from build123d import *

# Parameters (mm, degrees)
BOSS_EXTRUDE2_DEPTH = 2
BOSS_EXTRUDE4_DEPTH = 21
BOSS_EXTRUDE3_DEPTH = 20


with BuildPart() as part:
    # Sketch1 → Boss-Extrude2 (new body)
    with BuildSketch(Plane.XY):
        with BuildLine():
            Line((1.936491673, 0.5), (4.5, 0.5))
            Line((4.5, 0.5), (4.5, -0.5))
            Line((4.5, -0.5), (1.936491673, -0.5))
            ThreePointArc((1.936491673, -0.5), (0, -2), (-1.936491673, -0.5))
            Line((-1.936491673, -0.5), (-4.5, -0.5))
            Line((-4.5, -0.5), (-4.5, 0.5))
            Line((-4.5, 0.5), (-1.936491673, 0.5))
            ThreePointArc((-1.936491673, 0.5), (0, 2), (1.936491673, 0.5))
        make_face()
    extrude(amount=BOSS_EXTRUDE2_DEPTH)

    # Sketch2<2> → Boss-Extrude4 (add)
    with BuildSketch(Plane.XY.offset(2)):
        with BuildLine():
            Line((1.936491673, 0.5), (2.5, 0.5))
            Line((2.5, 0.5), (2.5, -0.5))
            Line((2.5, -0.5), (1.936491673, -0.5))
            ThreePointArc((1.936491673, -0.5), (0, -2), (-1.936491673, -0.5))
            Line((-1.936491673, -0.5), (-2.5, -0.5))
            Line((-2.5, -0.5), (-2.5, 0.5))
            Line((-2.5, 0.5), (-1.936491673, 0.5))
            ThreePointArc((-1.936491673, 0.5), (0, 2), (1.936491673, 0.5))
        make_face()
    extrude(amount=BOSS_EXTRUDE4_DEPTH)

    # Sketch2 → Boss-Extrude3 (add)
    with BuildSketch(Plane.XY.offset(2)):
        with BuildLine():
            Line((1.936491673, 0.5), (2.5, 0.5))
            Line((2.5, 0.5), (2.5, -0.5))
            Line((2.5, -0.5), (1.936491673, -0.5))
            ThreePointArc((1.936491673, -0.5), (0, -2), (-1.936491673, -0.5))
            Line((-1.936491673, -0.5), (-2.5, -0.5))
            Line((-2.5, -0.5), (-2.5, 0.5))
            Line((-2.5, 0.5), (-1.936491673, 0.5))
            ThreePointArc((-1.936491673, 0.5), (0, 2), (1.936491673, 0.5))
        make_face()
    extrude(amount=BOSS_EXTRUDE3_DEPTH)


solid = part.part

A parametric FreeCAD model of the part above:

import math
import FreeCAD as App
import Part
import Sketcher

V = App.Vector
Q = App.Units.Quantity

doc = App.newDocument("Part")
body = doc.addObject("PartDesign::Body", "Body")

# Sketch on XY plane
sketch1 = body.newObject("Sketcher::SketchObject", "Sketch")
sketch1.AttachmentSupport = (doc.getObject("XY_Plane"), [""])
sketch1.MapMode = "FlatFace"
sketch1.addGeometry([
    Part.LineSegment(V(4.5, 0.5, 0), V(1.9, 0.5, 0)),  # 0
    Part.ArcOfCircle(Part.Circle(V(0, 0, 0), V(0, 0, 1), 2), math.radians(14), math.radians(166)),  # 1
    Part.LineSegment(V(-1.9, 0.5, 0), V(-4.5, 0.5, 0)),  # 2
    Part.LineSegment(V(-4.5, 0.5, 0), V(-4.5, -0.5, 0)),  # 3
    Part.LineSegment(V(-4.5, -0.5, 0), V(-1.9, -0.5, 0)),  # 4
    Part.ArcOfCircle(Part.Circle(V(0, 0, 0), V(0, 0, 1), 2), math.radians(-166), math.radians(-14)),  # 5
    Part.LineSegment(V(1.9, -0.5, 0), V(4.5, -0.5, 0)),  # 6
    Part.LineSegment(V(4.5, -0.5, 0), V(4.5, 0.5, 0)),  # 7
], False)
sketch1.addConstraint([
    Sketcher.Constraint("Coincident", 0, 2, 1, 1),
    Sketcher.Constraint("Coincident", 1, 2, 2, 1),
    Sketcher.Constraint("Coincident", 2, 2, 3, 1),
    Sketcher.Constraint("Coincident", 3, 2, 4, 1),
    Sketcher.Constraint("Coincident", 4, 2, 5, 1),
    Sketcher.Constraint("Coincident", 5, 2, 6, 1),
    Sketcher.Constraint("Coincident", 6, 2, 7, 1),
    Sketcher.Constraint("Coincident", 7, 2, 0, 1),
    Sketcher.Constraint("Horizontal", 0),
    Sketcher.Constraint("Horizontal", 2),
    Sketcher.Constraint("Vertical", 3),
    Sketcher.Constraint("Horizontal", 4),
    Sketcher.Constraint("Horizontal", 6),
    Sketcher.Constraint("Vertical", 7),
    Sketcher.Constraint("Coincident", 1, 3, -1, 1),
    Sketcher.Constraint("Coincident", 5, 3, -1, 1),
    Sketcher.Constraint("Equal", 1, 5),
    Sketcher.Constraint("Symmetric", 2, 2, 6, 2, -1, 1),
    Sketcher.Constraint("Horizontal", 0, 2, 1, 2),
    Sketcher.Constraint("Horizontal", 4, 2, 5, 2),
    Sketcher.Constraint("Radius", 1, Q("2 mm")),
    Sketcher.Constraint("DistanceY", 3, 2, 3, 1, Q("1 mm")),
    Sketcher.Constraint("DistanceX", 2, 2, -1, 1, Q("4.5 mm")),
])
pad1 = body.newObject("PartDesign::Pad", "Pad")
pad1.Profile = sketch1
pad1.Length = 2

# Sketch on XY plane
sketch2 = body.newObject("Sketcher::SketchObject", "Sketch001")
sketch2.AttachmentSupport = (doc.getObject("XY_Plane"), [""])
sketch2.MapMode = "FlatFace"
sketch2.AttachmentOffset = App.Placement(V(0, 0, 2), App.Rotation())
sketch2.addGeometry([
    Part.LineSegment(V(2.5, 0.5, 0), V(1.9, 0.5, 0)),  # 0
    Part.ArcOfCircle(Part.Circle(V(0, 0, 0), V(0, 0, 1), 2), math.radians(14), math.radians(166)),  # 1
    Part.LineSegment(V(-1.9, 0.5, 0), V(-2.5, 0.5, 0)),  # 2
    Part.LineSegment(V(-2.5, 0.5, 0), V(-2.5, -0.5, 0)),  # 3
    Part.LineSegment(V(-2.5, -0.5, 0), V(-1.9, -0.5, 0)),  # 4
    Part.ArcOfCircle(Part.Circle(V(0, 0, 0), V(0, 0, 1), 2), math.radians(-166), math.radians(-14)),  # 5
    Part.LineSegment(V(1.9, -0.5, 0), V(2.5, -0.5, 0)),  # 6
    Part.LineSegment(V(2.5, -0.5, 0), V(2.5, 0.5, 0)),  # 7
], False)
sketch2.addConstraint([
    Sketcher.Constraint("Coincident", 0, 2, 1, 1),
    Sketcher.Constraint("Coincident", 1, 2, 2, 1),
    Sketcher.Constraint("Coincident", 2, 2, 3, 1),
    Sketcher.Constraint("Coincident", 3, 2, 4, 1),
    Sketcher.Constraint("Coincident", 4, 2, 5, 1),
    Sketcher.Constraint("Coincident", 5, 2, 6, 1),
    Sketcher.Constraint("Coincident", 6, 2, 7, 1),
    Sketcher.Constraint("Coincident", 7, 2, 0, 1),
    Sketcher.Constraint("Horizontal", 0),
    Sketcher.Constraint("Horizontal", 2),
    Sketcher.Constraint("Vertical", 3),
    Sketcher.Constraint("Horizontal", 4),
    Sketcher.Constraint("Horizontal", 6),
    Sketcher.Constraint("Vertical", 7),
    Sketcher.Constraint("Coincident", 1, 3, -1, 1),
    Sketcher.Constraint("Coincident", 5, 3, -1, 1),
    Sketcher.Constraint("Equal", 1, 5),
    Sketcher.Constraint("Symmetric", 2, 2, 6, 2, -1, 1),
    Sketcher.Constraint("Horizontal", 0, 2, 1, 2),
    Sketcher.Constraint("Horizontal", 4, 2, 5, 2),
    Sketcher.Constraint("Radius", 1, Q("2 mm")),
    Sketcher.Constraint("DistanceY", 3, 2, 3, 1, Q("1 mm")),
    Sketcher.Constraint("DistanceX", 2, 2, -1, 1, Q("2.5 mm")),
])
pad2 = body.newObject("PartDesign::Pad", "Pad001")
pad2.Profile = sketch2
pad2.Length = 21

# Sketch on XY plane
sketch3 = body.newObject("Sketcher::SketchObject", "Sketch002")
sketch3.AttachmentSupport = (doc.getObject("XY_Plane"), [""])
sketch3.MapMode = "FlatFace"
sketch3.AttachmentOffset = App.Placement(V(0, 0, 2), App.Rotation())
sketch3.addGeometry([
    Part.LineSegment(V(2.5, 0.5, 0), V(1.9, 0.5, 0)),  # 0
    Part.ArcOfCircle(Part.Circle(V(0, 0, 0), V(0, 0, 1), 2), math.radians(14), math.radians(166)),  # 1
    Part.LineSegment(V(-1.9, 0.5, 0), V(-2.5, 0.5, 0)),  # 2
    Part.LineSegment(V(-2.5, 0.5, 0), V(-2.5, -0.5, 0)),  # 3
    Part.LineSegment(V(-2.5, -0.5, 0), V(-1.9, -0.5, 0)),  # 4
    Part.ArcOfCircle(Part.Circle(V(0, 0, 0), V(0, 0, 1), 2), math.radians(-166), math.radians(-14)),  # 5
    Part.LineSegment(V(1.9, -0.5, 0), V(2.5, -0.5, 0)),  # 6
    Part.LineSegment(V(2.5, -0.5, 0), V(2.5, 0.5, 0)),  # 7
], False)
sketch3.addConstraint([
    Sketcher.Constraint("Coincident", 0, 2, 1, 1),
    Sketcher.Constraint("Coincident", 1, 2, 2, 1),
    Sketcher.Constraint("Coincident", 2, 2, 3, 1),
    Sketcher.Constraint("Coincident", 3, 2, 4, 1),
    Sketcher.Constraint("Coincident", 4, 2, 5, 1),
    Sketcher.Constraint("Coincident", 5, 2, 6, 1),
    Sketcher.Constraint("Coincident", 6, 2, 7, 1),
    Sketcher.Constraint("Coincident", 7, 2, 0, 1),
    Sketcher.Constraint("Horizontal", 0),
    Sketcher.Constraint("Horizontal", 2),
    Sketcher.Constraint("Vertical", 3),
    Sketcher.Constraint("Horizontal", 4),
    Sketcher.Constraint("Horizontal", 6),
    Sketcher.Constraint("Vertical", 7),
    Sketcher.Constraint("Coincident", 1, 3, -1, 1),
    Sketcher.Constraint("Coincident", 5, 3, -1, 1),
    Sketcher.Constraint("Equal", 1, 5),
    Sketcher.Constraint("Symmetric", 2, 2, 6, 2, -1, 1),
    Sketcher.Constraint("Horizontal", 0, 2, 1, 2),
    Sketcher.Constraint("Horizontal", 4, 2, 5, 2),
    Sketcher.Constraint("Radius", 1, Q("2 mm")),
    Sketcher.Constraint("DistanceY", 3, 2, 3, 1, Q("1 mm")),
    Sketcher.Constraint("DistanceX", 2, 2, -1, 1, Q("2.5 mm")),
])
pad3 = body.newObject("PartDesign::Pad", "Pad002")
pad3.Profile = sketch3
pad3.Length = 20

doc.recompute()
